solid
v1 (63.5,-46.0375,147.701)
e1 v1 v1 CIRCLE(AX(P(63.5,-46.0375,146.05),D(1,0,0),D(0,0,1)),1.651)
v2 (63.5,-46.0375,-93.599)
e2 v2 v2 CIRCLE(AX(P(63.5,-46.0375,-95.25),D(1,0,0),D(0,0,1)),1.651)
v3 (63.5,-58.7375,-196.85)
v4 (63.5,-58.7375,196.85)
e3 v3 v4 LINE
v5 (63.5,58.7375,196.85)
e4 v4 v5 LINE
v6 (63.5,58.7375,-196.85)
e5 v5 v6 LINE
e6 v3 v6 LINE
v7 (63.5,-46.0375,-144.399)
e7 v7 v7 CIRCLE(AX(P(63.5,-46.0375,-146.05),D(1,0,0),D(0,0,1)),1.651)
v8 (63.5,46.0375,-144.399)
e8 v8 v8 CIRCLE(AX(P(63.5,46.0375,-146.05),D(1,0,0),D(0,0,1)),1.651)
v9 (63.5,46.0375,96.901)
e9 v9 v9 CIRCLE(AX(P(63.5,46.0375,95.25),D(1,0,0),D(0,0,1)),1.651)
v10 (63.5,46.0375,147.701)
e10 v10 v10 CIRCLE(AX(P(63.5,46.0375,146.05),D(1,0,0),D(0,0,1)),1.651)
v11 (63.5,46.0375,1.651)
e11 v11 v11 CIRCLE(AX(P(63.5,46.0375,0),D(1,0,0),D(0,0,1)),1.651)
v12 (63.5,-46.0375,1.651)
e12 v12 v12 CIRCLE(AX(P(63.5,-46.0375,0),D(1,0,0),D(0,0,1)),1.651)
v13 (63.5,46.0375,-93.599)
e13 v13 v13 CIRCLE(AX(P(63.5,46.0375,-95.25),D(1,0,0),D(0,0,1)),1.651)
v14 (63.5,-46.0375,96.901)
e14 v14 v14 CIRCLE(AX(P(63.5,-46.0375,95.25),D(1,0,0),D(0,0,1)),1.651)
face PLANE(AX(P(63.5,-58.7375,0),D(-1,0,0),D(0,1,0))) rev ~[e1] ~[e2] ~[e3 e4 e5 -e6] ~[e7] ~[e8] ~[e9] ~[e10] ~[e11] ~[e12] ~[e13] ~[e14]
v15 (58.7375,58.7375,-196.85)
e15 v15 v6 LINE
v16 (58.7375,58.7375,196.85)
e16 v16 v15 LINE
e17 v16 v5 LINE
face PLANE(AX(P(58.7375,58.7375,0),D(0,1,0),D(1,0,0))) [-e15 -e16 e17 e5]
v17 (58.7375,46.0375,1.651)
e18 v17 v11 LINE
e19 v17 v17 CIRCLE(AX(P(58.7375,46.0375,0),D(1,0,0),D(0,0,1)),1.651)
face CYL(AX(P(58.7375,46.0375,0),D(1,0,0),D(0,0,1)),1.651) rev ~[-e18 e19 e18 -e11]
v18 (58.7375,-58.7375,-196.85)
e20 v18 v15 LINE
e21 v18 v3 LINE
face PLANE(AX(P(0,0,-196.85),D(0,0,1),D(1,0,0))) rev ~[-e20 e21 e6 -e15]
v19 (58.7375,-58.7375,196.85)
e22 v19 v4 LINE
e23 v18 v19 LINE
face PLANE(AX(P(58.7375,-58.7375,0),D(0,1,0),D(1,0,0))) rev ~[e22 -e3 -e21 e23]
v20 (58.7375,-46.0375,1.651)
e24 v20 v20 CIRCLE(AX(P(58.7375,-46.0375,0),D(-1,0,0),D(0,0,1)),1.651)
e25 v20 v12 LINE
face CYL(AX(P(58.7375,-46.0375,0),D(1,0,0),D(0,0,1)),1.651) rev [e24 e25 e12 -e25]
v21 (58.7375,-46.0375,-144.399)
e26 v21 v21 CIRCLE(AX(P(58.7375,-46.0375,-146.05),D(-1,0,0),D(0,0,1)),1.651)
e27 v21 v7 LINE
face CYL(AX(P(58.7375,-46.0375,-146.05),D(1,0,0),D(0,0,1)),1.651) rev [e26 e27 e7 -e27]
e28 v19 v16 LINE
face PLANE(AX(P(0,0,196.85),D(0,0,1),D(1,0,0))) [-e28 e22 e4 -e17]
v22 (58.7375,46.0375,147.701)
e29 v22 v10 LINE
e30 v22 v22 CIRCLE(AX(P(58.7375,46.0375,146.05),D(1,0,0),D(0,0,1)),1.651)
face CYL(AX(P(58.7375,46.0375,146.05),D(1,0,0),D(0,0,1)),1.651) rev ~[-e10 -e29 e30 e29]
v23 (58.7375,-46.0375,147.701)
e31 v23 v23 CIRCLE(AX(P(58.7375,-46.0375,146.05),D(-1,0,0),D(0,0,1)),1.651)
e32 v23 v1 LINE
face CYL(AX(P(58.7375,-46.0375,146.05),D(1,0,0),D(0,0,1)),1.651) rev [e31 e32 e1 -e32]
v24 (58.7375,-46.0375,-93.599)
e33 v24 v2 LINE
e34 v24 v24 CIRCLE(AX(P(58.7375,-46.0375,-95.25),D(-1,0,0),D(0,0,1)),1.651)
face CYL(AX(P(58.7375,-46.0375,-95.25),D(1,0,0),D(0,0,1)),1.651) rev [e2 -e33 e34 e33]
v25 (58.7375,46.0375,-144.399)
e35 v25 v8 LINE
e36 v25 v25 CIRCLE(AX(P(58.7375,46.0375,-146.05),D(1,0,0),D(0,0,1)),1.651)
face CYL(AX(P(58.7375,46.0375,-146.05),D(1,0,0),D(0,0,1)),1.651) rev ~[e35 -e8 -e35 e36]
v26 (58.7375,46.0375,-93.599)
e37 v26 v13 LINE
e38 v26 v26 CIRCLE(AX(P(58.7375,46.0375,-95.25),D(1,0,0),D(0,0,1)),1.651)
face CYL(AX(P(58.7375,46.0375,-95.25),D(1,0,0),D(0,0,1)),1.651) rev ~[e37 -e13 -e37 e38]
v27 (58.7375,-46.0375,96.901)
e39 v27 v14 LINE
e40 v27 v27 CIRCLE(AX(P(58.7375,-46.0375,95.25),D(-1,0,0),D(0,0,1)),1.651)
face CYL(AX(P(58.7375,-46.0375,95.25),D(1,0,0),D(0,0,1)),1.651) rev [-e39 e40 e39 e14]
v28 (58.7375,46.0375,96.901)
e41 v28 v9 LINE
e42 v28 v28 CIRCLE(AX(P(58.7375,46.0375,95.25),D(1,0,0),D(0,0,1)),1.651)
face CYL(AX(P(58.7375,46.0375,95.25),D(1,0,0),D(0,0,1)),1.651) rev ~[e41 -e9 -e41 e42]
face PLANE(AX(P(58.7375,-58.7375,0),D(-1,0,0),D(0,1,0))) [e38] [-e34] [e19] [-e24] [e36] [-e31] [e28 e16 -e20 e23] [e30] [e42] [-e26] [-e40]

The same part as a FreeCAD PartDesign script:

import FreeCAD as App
import Part
import Sketcher

V = App.Vector
Q = App.Units.Quantity

doc = App.newDocument("Part")
body = doc.addObject("PartDesign::Body", "Body")

sketch1 = doc.addObject("Sketcher::SketchObject", "Sketch")
body.addObject(sketch1)
sketch1.AttachmentSupport = (doc.XY_Plane, [""])
sketch1.MapMode = "FlatFace"
sketch1.addGeometry([
    Part.LineSegment(V(58.7, 58.7, 0), V(58.7, -58.7, 0)),
    Part.LineSegment(V(58.7, -58.7, 0), V(63.5, -58.7, 0)),
    Part.LineSegment(V(63.5, -58.7, 0), V(63.5, 58.7, 0)),
    Part.LineSegment(V(63.5, 58.7, 0), V(58.7, 58.7, 0)),
], False)
sketch1.addConstraint([
    Sketcher.Constraint("Coincident", 0, 2, 1, 1),
    Sketcher.Constraint("Coincident", 1, 2, 2, 1),
    Sketcher.Constraint("Coincident", 2, 2, 3, 1),
    Sketcher.Constraint("Coincident", 3, 2, 0, 1),
    Sketcher.Constraint("Vertical", 0),
    Sketcher.Constraint("Horizontal", 1),
    Sketcher.Constraint("Vertical", 2),
    Sketcher.Constraint("Horizontal", 3),
    Sketcher.Constraint("DistanceX", 1, 1, 1, 2, Q("0.1875 in")),
    Sketcher.Constraint("DistanceY", 0, 2, 0, 1, Q("4.625 in")),
    Sketcher.Constraint("DistanceX", -1, 1, 1, 2, Q("2.5 in")),
    Sketcher.Constraint("DistanceY", 0, 2, -1, 1, Q("2.3125 in")),
])
pad1 = doc.addObject("PartDesign::Pad", "Pad")
body.addObject(pad1)
pad1.Profile = sketch1
pad1.Length = Q("15.5 in")
pad1.Midplane = True

sketch2 = doc.addObject("Sketcher::SketchObject", "Sketch001")
body.addObject(sketch2)
sketch2.AttachmentSupport = (doc.YZ_Plane, [""])
sketch2.MapMode = "FlatFace"
sketch2.AttachmentOffset = App.Placement(V(0, 0, 2.3125 * 25.4), App.Rotation())
sketch2.addGeometry([
    Part.Circle(V(46, -146.1, 0), V(0, 0, 1), 1.7),
    Part.Circle(V(46, 0, 0), V(0, 0, 1), 1.7),
    Part.Circle(V(46, -95.2, 0), V(0, 0, 1), 1.7),
    Part.Circle(V(46, 146.1, 0), V(0, 0, 1), 1.7),
    Part.Circle(V(46, 95.2, 0), V(0, 0, 1), 1.7),
], False)
sketch2.addConstraint([
    Sketcher.Constraint("Equal", 0, 1),
    Sketcher.Constraint("Equal", 1, 2),
    Sketcher.Constraint("Equal", 2, 3),
    Sketcher.Constraint("Equal", 3, 4),
    Sketcher.Constraint("Symmetric", 0, 3, 3, 3, -1),
    Sketcher.Constraint("Symmetric", 2, 3, 4, 3, -1),
    Sketcher.Constraint("PointOnObject", 1, 3, -1),
    Sketcher.Constraint("Vertical", 0, 3, 1, 3),
    Sketcher.Constraint("Vertical", 1, 3, 2, 3),
    Sketcher.Constraint("Diameter", 0, Q("0.13 in")),
    Sketcher.Constraint("DistanceY", 0, 3, 2, 3, Q("2 in")),
    Sketcher.Constraint("DistanceY", 2, 3, 3, 3, Q("9.5 in")),
    Sketcher.Constraint("DistanceX", -1, 1, 0, 3, Q("1.8125 in")),
])
doc.recompute()
hole = doc.addObject("PartDesign::Hole", "Hole")
body.addObject(hole)
hole.Profile = sketch2
hole.ThreadType = "None"
hole.Diameter = Q("0.13 in")
hole.DepthType = "Dimension"
hole.Depth = Q("0.49 in")
hole.DrillPoint = "Angled"
hole.DrillPointAngle = 118
hole.Reversed = True
doc.recompute()

mirrored = doc.addObject("PartDesign::Mirrored", "Mirrored")
body.addObject(mirrored)
mirrored.Originals = [hole]
mirrored.MirrorPlane = (doc.XZ_Plane, [""])
body.Tip = mirrored

doc.recompute()
